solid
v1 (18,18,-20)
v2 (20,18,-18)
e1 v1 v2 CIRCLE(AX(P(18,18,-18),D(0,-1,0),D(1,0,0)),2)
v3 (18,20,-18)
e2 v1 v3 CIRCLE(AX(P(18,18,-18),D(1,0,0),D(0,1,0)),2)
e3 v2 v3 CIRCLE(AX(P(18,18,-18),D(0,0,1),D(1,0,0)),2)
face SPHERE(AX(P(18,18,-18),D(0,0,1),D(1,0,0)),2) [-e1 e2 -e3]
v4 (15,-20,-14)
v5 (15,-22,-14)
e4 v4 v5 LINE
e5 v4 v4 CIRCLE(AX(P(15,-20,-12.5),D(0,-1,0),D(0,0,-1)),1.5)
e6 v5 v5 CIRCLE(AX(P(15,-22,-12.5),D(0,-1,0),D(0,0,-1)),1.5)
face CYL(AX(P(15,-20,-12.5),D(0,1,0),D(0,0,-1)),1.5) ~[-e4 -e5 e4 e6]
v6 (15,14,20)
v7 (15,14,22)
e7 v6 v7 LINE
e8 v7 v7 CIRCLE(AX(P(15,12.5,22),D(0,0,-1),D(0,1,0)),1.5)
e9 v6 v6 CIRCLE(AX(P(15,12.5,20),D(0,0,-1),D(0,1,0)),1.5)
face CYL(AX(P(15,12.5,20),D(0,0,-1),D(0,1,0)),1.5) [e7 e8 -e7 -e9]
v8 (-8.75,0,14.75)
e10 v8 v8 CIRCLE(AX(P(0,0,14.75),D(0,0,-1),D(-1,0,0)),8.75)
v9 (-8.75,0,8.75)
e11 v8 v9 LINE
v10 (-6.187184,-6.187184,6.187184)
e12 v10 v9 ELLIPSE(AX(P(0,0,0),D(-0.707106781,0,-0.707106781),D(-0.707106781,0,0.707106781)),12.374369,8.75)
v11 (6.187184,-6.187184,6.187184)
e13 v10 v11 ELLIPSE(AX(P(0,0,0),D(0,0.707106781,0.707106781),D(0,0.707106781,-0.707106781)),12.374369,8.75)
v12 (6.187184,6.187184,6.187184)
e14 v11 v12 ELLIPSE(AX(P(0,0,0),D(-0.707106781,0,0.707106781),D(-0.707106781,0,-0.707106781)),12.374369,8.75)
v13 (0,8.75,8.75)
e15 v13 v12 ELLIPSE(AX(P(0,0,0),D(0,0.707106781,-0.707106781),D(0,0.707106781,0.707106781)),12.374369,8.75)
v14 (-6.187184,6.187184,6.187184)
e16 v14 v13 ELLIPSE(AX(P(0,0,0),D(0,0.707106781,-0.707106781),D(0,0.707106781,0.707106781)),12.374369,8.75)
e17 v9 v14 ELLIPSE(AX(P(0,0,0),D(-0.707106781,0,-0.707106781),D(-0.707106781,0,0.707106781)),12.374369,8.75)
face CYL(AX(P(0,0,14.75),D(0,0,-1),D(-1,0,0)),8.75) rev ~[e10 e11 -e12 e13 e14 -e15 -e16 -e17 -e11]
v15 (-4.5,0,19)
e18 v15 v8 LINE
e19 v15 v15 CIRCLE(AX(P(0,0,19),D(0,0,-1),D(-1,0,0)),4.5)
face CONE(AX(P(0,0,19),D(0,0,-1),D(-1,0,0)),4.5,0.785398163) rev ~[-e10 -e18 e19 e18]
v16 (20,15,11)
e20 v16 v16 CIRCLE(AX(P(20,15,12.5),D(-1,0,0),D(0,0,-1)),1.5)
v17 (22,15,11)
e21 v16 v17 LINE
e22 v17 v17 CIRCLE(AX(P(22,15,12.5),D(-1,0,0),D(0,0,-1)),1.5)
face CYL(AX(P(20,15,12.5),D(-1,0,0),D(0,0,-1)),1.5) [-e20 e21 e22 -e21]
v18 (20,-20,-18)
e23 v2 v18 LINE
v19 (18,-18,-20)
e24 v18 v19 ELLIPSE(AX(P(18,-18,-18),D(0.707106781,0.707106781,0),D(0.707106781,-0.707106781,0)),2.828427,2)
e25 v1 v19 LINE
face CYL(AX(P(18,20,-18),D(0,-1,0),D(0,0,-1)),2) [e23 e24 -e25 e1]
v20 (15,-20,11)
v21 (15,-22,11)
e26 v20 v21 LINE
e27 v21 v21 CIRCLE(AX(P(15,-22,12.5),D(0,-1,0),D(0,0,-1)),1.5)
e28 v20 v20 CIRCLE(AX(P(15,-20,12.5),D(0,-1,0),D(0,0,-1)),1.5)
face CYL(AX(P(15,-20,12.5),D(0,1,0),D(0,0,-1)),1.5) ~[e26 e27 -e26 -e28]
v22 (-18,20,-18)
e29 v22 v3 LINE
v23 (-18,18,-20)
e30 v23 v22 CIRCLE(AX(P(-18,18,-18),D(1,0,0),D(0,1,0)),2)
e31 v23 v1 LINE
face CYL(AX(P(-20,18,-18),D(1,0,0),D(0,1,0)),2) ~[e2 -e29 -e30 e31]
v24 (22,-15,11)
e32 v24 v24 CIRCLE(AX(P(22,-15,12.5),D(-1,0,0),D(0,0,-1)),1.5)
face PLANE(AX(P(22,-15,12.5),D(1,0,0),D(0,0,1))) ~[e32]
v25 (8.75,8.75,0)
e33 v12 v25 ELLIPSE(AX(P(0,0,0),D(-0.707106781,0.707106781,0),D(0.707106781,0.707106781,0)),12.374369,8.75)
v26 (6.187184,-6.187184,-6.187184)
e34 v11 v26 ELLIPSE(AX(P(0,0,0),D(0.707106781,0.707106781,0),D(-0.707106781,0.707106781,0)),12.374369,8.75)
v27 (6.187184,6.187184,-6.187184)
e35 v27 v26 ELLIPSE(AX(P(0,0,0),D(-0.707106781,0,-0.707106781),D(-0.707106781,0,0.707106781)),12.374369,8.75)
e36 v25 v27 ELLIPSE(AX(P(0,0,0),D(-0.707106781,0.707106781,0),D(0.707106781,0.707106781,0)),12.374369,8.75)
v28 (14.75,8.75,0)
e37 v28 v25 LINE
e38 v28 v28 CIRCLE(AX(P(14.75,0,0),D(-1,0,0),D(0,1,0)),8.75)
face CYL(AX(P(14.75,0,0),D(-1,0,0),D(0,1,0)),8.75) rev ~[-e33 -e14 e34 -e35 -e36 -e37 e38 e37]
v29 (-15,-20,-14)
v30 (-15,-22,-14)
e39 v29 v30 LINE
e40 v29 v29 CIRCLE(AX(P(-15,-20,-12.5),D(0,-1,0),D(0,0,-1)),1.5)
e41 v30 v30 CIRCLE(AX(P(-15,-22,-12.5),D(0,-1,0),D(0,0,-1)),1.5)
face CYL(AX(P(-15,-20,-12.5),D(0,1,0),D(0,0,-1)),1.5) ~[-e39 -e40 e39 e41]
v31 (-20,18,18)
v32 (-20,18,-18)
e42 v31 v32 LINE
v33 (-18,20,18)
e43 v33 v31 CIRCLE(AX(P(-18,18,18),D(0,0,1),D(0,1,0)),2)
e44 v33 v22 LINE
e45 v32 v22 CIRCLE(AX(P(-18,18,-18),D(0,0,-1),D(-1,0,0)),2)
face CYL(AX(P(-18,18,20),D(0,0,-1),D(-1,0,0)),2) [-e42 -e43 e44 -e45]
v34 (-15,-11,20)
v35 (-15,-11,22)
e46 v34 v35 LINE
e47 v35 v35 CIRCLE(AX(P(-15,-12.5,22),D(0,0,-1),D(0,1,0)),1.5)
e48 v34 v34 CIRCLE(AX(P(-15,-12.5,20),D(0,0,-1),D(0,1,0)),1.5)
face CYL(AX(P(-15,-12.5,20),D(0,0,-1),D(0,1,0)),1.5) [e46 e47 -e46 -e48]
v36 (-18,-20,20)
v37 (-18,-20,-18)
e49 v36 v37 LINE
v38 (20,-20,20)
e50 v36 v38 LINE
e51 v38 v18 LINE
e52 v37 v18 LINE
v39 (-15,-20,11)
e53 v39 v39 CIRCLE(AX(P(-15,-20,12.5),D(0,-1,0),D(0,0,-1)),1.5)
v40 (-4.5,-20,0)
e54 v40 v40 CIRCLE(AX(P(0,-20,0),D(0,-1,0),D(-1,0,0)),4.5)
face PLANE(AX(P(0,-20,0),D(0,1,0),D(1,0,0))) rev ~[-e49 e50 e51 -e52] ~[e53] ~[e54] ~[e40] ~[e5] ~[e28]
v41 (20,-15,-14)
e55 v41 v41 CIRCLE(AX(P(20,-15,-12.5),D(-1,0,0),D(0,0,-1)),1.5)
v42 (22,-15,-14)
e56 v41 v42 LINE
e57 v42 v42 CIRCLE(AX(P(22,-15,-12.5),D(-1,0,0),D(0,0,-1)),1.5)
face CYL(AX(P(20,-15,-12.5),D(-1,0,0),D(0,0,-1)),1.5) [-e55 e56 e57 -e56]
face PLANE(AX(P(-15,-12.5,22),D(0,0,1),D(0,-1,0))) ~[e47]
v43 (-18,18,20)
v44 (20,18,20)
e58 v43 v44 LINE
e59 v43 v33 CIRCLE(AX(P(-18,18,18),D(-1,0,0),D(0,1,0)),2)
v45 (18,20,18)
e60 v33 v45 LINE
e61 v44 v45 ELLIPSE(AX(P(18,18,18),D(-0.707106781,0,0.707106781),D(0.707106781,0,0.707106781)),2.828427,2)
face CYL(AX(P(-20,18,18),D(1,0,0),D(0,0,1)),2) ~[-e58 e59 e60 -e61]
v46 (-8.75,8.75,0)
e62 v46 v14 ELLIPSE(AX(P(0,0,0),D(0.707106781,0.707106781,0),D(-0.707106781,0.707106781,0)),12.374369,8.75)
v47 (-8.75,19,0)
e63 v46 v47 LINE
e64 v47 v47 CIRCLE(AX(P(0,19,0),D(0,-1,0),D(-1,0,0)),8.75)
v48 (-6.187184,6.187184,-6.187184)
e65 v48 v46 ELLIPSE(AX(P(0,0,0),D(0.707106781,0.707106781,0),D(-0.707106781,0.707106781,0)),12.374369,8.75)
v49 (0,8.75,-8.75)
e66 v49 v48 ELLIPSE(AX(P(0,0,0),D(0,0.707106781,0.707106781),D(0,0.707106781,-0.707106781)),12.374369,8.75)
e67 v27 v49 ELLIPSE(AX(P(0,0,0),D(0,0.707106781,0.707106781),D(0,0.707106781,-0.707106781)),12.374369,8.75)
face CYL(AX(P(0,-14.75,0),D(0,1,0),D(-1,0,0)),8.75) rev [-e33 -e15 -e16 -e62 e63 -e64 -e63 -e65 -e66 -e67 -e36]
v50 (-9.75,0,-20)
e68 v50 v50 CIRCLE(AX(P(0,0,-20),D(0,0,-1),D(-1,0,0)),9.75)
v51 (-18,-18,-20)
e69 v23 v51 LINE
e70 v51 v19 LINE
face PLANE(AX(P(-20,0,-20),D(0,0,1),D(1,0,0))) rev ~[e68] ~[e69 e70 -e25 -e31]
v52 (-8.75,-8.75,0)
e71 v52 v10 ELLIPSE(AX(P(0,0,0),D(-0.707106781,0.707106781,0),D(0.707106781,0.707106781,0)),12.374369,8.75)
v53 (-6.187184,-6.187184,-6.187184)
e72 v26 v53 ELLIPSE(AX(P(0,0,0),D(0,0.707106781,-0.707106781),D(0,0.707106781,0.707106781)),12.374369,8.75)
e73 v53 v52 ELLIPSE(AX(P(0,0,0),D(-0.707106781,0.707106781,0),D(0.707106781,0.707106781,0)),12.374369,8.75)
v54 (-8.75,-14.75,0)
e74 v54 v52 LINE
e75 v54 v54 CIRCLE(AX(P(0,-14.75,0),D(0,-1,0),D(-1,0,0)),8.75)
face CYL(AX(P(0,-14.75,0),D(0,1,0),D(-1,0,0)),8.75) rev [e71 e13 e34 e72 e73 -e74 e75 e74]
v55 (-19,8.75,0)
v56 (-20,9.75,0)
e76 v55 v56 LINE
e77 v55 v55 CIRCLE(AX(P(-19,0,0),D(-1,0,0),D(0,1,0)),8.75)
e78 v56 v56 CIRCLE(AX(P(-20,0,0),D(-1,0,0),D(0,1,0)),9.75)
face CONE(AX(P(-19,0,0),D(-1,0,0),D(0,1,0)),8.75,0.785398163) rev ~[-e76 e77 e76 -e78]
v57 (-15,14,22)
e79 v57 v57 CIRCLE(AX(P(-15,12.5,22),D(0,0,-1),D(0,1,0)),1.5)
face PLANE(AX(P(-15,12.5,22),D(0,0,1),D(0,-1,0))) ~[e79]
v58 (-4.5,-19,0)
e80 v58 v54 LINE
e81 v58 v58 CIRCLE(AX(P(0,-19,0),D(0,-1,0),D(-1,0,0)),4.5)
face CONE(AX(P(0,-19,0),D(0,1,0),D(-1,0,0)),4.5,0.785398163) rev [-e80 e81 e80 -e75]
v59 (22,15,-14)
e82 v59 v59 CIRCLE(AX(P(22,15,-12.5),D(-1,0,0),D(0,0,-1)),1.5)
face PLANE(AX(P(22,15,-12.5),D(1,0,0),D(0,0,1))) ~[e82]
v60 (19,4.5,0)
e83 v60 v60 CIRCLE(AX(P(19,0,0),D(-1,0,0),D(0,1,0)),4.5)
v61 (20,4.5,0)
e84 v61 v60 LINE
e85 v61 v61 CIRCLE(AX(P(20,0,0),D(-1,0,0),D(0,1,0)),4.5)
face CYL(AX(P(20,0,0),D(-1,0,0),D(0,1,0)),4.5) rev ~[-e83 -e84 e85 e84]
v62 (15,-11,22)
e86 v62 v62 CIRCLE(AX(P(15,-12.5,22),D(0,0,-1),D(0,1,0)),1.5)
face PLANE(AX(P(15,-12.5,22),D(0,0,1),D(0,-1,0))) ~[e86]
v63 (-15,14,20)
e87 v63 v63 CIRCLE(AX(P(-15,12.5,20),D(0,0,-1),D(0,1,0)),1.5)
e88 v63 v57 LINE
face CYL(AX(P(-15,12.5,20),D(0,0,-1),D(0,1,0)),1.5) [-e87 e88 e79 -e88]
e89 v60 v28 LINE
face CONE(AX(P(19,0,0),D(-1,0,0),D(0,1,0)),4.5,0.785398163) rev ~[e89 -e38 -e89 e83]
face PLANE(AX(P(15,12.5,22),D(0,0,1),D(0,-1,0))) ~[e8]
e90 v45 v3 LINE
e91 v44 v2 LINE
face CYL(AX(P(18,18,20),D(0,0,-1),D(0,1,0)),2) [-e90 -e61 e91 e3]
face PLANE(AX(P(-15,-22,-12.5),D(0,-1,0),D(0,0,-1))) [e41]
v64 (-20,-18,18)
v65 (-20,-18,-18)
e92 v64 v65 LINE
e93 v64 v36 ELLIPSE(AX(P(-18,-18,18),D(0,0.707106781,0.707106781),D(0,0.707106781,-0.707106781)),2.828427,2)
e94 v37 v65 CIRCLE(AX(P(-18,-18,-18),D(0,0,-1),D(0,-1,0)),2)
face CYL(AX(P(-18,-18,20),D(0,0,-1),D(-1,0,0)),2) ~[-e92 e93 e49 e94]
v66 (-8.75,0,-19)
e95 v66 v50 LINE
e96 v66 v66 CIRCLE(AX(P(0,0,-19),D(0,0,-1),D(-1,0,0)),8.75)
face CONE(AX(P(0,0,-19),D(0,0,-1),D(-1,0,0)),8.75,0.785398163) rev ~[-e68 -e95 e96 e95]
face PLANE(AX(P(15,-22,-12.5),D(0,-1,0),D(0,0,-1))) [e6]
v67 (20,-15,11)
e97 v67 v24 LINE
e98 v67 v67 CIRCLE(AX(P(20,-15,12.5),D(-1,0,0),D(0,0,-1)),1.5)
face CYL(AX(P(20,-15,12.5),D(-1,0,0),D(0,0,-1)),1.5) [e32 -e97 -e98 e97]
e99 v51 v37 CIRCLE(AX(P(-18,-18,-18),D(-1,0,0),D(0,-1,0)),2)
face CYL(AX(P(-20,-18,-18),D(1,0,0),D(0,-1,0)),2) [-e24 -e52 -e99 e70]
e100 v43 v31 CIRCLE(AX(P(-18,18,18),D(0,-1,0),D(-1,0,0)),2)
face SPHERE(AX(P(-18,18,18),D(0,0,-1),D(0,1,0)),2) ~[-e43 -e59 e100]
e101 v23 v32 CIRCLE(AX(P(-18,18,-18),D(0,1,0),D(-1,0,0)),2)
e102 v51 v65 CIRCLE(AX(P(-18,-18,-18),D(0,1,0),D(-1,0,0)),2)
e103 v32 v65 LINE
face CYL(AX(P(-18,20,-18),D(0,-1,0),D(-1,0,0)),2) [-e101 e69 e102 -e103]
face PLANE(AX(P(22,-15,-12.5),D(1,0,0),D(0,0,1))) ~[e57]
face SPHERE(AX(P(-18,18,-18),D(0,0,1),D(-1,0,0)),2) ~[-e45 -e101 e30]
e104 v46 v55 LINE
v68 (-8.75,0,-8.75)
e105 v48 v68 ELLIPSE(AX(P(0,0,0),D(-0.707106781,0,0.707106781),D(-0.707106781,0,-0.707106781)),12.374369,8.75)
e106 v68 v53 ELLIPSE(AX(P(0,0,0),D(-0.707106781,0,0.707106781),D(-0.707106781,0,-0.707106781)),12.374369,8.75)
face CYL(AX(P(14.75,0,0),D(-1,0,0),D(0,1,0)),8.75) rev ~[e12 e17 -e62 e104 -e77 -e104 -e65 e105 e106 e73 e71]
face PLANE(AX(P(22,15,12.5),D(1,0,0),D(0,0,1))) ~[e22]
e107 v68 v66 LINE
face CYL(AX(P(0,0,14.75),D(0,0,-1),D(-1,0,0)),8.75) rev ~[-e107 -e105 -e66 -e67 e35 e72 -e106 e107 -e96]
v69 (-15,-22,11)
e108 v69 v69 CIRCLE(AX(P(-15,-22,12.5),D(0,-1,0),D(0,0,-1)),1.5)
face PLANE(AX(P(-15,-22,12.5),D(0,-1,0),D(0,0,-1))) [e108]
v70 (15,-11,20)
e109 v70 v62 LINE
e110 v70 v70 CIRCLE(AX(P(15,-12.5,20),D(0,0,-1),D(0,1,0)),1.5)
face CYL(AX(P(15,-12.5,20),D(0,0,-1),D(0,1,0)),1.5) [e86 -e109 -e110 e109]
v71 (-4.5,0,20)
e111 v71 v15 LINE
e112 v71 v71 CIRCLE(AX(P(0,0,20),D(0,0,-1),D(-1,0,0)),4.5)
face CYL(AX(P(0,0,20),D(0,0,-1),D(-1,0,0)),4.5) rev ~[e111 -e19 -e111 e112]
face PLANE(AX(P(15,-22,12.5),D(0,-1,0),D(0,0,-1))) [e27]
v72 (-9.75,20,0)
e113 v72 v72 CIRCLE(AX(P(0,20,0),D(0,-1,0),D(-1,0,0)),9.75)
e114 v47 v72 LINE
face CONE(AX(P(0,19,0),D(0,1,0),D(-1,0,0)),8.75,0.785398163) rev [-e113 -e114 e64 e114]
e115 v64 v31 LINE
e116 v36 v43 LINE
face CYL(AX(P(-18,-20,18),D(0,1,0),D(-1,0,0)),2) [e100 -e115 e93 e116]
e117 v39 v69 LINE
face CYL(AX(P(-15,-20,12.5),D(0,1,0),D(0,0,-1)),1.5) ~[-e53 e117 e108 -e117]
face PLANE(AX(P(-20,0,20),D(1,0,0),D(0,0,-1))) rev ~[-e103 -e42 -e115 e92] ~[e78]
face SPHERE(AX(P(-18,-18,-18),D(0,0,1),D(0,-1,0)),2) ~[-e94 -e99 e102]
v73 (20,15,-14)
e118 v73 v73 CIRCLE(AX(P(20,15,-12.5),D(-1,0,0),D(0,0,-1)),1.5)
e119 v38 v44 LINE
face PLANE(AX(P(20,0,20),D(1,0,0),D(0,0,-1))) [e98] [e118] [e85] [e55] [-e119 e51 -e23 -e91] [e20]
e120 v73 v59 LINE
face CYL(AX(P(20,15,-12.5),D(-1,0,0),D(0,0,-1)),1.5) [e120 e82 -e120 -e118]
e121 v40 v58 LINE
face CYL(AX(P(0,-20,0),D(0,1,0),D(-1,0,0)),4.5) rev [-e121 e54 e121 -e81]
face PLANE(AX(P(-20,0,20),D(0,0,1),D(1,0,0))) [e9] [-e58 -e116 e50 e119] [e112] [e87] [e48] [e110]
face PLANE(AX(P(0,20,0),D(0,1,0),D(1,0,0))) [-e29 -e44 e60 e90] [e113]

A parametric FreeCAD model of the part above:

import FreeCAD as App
import Part
import Sketcher
from FreeCAD import Vector
Q = App.Units.Quantity


def edges_at(feature, points):
    """Names of the edges that pass closest to the given points."""
    edges = feature.Shape.Edges
    near = lambda p: min(range(len(edges)), key=lambda i: edges[i].distToShape(Part.Vertex(*p))[0])
    return sorted({f"Edge{near(p) + 1}" for p in points})


def add_polygon(sketch, points):
    """Adds a closed chain of lines whose ends are joined by coincident constraints."""
    first, n = sketch.GeometryCount, len(points)
    for a, b in zip(points, points[1:] + points[:1]):
        sketch.addGeometry(Part.LineSegment(App.Vector(*a, 0), App.Vector(*b, 0)), False)
    for i in range(n):
        sketch.addConstraint(Sketcher.Constraint("Coincident", first + i, 2, first + (i + 1) % n, 1))

doc = App.newDocument("Part")
body = doc.addObject("PartDesign::Body", "Body")

sketch1 = body.newObject("Sketcher::SketchObject", "Sketch")
sketch1.AttachmentSupport = (doc.getObject("XZ_Plane"), [""])
sketch1.MapMode = "FlatFace"
add_polygon(sketch1, [(-20, -20), (-20, 20), (20, 20), (20, -20)])
sketch1.addConstraint([
    Sketcher.Constraint("Vertical", 0),
    Sketcher.Constraint("Horizontal", 1),
    Sketcher.Constraint("Vertical", 2),
    Sketcher.Constraint("Horizontal", 3),
    Sketcher.Constraint("Symmetric", 0, 2, 2, 2, -1, 1),
    Sketcher.Constraint("Equal", 3, 0),
    Sketcher.Constraint("DistanceX", 1, 1, 1, 2, Q("40 mm")),
])
pad1 = body.newObject("PartDesign::Pad", "Pad")
pad1.Profile = sketch1
pad1.Length = 40
pad1.Midplane = True

sketch2 = body.newObject("Sketcher::SketchObject", "Sketch001")
sketch2.AttachmentSupport = (doc.getObject("XY_Plane"), [""])
sketch2.MapMode = "FlatFace"
add_polygon(sketch2, [(-4.5, -19), (-4.5, -20), (0, -20), (0, 20), (-9.75, 20), (-8.75, 19), (-8.75, -14.75)])
sketch2.addConstraint([
    Sketcher.Constraint("Vertical", 0),
    Sketcher.Constraint("Horizontal", 1),
    Sketcher.Constraint("Vertical", 2),
    Sketcher.Constraint("Horizontal", 3),
    Sketcher.Constraint("Vertical", 5),
    Sketcher.Constraint("Symmetric", 1, 2, 2, 2, -1, 1),
    Sketcher.Constraint("Parallel", 4, 6),
    Sketcher.Constraint("DistanceY", 0, 2, 0, 1, Q("1 mm")),
    Sketcher.Constraint("DistanceY", 2, 1, 2, 2, Q("40 mm")),
    Sketcher.Constraint("Angle", 4, Q("-45 deg")),
    Sketcher.Constraint("DistanceX", 1, 1, 1, 2, Q("4.5 mm")),
    Sketcher.Constraint("DistanceY", -1, 1, 4, 2, Q("19 mm")),
    Sketcher.Constraint("DistanceX", 3, 2, 3, 1, Q("9.75 mm")),
])
groove = body.newObject("PartDesign::Groove", "Groove")
groove.Profile = sketch2
groove.ReferenceAxis = (sketch2, ["V_Axis"])
groove.Angle = 360

sketch3 = body.newObject("Sketcher::SketchObject", "Sketch002")
sketch3.AttachmentSupport = (doc.getObject("XZ_Plane"), [""])
sketch3.MapMode = "FlatFace"
sketch3.AttachmentOffset = App.Placement(Vector(0, 0, 20), App.Rotation())
sketch3.addGeometry([
    Part.Circle(Vector(-15, 12.5, 0), Vector(0, 0, 1), 1.5),
    Part.Circle(Vector(-15, -12.5, 0), Vector(0, 0, 1), 1.5),
    Part.Circle(Vector(15, -12.5, 0), Vector(0, 0, 1), 1.5),
    Part.Circle(Vector(15, 12.5, 0), Vector(0, 0, 1), 1.5),
], False)
sketch3.addConstraint([
    Sketcher.Constraint("Equal", 0, 1),
    Sketcher.Constraint("Equal", 1, 2),
    Sketcher.Constraint("Equal", 2, 3),
    Sketcher.Constraint("Symmetric", 0, 3, 2, 3, -1, 1),
    Sketcher.Constraint("Symmetric", 1, 3, 3, 3, -1, 1),
    Sketcher.Constraint("Symmetric", 1, 3, 2, 3, -2),
    Sketcher.Constraint("Diameter", 0, Q("3 mm")),
    Sketcher.Constraint("DistanceX", 0, 3, -1, 1, Q("15 mm")),
    Sketcher.Constraint("DistanceY", 1, 3, 0, 3, Q("25 mm")),
])
pad2 = body.newObject("PartDesign::Pad", "Pad001")
pad2.Profile = sketch3
pad2.Length = 2
doc.recompute()

datumplane = body.newObject("PartDesign::Plane", "DatumPlane")
datumplane.Placement = App.Placement(Vector(0, 0, 0), App.Rotation(Vector(0.707106781, -0.707106781, 0), Vector(0, 0, -1), Vector(0.707106781, 0.707106781, 0), "ZXY"))
mirrored = body.newObject("PartDesign::Mirrored", "Mirrored")
mirrored.Originals = [groove, pad2]
mirrored.MirrorPlane = (datumplane, [""])
body.Tip = mirrored
doc.recompute()

fillet = body.newObject("PartDesign::Fillet", "Fillet")
fillet.Base = (mirrored, edges_at(mirrored, [
    (-20, 20, 0),
    (0, 20, 20),
    (20, 20, 0),
    (-20, -20, 0),
    (0, -20, -20),
    (-20, 0, 20),
    (-20, 0, -20),
    (20, 0, -20),
    (0, 20, -20),
]))
fillet.Radius = 2
doc.recompute()

datumplane2 = body.newObject("PartDesign::Plane", "DatumPlane001")
datumplane2.Placement = App.Placement(Vector(0, 0, 0), App.Rotation(Vector(0, 0.707106781, -0.707106781), Vector(-1, 0, 0), Vector(0, 0.707106781, 0.707106781), "ZXY"))
mirrored2 = body.newObject("PartDesign::Mirrored", "Mirrored001")
mirrored2.Originals = [groove, pad2]
mirrored2.MirrorPlane = (datumplane2, [""])
body.Tip = mirrored2

doc.recompute()
